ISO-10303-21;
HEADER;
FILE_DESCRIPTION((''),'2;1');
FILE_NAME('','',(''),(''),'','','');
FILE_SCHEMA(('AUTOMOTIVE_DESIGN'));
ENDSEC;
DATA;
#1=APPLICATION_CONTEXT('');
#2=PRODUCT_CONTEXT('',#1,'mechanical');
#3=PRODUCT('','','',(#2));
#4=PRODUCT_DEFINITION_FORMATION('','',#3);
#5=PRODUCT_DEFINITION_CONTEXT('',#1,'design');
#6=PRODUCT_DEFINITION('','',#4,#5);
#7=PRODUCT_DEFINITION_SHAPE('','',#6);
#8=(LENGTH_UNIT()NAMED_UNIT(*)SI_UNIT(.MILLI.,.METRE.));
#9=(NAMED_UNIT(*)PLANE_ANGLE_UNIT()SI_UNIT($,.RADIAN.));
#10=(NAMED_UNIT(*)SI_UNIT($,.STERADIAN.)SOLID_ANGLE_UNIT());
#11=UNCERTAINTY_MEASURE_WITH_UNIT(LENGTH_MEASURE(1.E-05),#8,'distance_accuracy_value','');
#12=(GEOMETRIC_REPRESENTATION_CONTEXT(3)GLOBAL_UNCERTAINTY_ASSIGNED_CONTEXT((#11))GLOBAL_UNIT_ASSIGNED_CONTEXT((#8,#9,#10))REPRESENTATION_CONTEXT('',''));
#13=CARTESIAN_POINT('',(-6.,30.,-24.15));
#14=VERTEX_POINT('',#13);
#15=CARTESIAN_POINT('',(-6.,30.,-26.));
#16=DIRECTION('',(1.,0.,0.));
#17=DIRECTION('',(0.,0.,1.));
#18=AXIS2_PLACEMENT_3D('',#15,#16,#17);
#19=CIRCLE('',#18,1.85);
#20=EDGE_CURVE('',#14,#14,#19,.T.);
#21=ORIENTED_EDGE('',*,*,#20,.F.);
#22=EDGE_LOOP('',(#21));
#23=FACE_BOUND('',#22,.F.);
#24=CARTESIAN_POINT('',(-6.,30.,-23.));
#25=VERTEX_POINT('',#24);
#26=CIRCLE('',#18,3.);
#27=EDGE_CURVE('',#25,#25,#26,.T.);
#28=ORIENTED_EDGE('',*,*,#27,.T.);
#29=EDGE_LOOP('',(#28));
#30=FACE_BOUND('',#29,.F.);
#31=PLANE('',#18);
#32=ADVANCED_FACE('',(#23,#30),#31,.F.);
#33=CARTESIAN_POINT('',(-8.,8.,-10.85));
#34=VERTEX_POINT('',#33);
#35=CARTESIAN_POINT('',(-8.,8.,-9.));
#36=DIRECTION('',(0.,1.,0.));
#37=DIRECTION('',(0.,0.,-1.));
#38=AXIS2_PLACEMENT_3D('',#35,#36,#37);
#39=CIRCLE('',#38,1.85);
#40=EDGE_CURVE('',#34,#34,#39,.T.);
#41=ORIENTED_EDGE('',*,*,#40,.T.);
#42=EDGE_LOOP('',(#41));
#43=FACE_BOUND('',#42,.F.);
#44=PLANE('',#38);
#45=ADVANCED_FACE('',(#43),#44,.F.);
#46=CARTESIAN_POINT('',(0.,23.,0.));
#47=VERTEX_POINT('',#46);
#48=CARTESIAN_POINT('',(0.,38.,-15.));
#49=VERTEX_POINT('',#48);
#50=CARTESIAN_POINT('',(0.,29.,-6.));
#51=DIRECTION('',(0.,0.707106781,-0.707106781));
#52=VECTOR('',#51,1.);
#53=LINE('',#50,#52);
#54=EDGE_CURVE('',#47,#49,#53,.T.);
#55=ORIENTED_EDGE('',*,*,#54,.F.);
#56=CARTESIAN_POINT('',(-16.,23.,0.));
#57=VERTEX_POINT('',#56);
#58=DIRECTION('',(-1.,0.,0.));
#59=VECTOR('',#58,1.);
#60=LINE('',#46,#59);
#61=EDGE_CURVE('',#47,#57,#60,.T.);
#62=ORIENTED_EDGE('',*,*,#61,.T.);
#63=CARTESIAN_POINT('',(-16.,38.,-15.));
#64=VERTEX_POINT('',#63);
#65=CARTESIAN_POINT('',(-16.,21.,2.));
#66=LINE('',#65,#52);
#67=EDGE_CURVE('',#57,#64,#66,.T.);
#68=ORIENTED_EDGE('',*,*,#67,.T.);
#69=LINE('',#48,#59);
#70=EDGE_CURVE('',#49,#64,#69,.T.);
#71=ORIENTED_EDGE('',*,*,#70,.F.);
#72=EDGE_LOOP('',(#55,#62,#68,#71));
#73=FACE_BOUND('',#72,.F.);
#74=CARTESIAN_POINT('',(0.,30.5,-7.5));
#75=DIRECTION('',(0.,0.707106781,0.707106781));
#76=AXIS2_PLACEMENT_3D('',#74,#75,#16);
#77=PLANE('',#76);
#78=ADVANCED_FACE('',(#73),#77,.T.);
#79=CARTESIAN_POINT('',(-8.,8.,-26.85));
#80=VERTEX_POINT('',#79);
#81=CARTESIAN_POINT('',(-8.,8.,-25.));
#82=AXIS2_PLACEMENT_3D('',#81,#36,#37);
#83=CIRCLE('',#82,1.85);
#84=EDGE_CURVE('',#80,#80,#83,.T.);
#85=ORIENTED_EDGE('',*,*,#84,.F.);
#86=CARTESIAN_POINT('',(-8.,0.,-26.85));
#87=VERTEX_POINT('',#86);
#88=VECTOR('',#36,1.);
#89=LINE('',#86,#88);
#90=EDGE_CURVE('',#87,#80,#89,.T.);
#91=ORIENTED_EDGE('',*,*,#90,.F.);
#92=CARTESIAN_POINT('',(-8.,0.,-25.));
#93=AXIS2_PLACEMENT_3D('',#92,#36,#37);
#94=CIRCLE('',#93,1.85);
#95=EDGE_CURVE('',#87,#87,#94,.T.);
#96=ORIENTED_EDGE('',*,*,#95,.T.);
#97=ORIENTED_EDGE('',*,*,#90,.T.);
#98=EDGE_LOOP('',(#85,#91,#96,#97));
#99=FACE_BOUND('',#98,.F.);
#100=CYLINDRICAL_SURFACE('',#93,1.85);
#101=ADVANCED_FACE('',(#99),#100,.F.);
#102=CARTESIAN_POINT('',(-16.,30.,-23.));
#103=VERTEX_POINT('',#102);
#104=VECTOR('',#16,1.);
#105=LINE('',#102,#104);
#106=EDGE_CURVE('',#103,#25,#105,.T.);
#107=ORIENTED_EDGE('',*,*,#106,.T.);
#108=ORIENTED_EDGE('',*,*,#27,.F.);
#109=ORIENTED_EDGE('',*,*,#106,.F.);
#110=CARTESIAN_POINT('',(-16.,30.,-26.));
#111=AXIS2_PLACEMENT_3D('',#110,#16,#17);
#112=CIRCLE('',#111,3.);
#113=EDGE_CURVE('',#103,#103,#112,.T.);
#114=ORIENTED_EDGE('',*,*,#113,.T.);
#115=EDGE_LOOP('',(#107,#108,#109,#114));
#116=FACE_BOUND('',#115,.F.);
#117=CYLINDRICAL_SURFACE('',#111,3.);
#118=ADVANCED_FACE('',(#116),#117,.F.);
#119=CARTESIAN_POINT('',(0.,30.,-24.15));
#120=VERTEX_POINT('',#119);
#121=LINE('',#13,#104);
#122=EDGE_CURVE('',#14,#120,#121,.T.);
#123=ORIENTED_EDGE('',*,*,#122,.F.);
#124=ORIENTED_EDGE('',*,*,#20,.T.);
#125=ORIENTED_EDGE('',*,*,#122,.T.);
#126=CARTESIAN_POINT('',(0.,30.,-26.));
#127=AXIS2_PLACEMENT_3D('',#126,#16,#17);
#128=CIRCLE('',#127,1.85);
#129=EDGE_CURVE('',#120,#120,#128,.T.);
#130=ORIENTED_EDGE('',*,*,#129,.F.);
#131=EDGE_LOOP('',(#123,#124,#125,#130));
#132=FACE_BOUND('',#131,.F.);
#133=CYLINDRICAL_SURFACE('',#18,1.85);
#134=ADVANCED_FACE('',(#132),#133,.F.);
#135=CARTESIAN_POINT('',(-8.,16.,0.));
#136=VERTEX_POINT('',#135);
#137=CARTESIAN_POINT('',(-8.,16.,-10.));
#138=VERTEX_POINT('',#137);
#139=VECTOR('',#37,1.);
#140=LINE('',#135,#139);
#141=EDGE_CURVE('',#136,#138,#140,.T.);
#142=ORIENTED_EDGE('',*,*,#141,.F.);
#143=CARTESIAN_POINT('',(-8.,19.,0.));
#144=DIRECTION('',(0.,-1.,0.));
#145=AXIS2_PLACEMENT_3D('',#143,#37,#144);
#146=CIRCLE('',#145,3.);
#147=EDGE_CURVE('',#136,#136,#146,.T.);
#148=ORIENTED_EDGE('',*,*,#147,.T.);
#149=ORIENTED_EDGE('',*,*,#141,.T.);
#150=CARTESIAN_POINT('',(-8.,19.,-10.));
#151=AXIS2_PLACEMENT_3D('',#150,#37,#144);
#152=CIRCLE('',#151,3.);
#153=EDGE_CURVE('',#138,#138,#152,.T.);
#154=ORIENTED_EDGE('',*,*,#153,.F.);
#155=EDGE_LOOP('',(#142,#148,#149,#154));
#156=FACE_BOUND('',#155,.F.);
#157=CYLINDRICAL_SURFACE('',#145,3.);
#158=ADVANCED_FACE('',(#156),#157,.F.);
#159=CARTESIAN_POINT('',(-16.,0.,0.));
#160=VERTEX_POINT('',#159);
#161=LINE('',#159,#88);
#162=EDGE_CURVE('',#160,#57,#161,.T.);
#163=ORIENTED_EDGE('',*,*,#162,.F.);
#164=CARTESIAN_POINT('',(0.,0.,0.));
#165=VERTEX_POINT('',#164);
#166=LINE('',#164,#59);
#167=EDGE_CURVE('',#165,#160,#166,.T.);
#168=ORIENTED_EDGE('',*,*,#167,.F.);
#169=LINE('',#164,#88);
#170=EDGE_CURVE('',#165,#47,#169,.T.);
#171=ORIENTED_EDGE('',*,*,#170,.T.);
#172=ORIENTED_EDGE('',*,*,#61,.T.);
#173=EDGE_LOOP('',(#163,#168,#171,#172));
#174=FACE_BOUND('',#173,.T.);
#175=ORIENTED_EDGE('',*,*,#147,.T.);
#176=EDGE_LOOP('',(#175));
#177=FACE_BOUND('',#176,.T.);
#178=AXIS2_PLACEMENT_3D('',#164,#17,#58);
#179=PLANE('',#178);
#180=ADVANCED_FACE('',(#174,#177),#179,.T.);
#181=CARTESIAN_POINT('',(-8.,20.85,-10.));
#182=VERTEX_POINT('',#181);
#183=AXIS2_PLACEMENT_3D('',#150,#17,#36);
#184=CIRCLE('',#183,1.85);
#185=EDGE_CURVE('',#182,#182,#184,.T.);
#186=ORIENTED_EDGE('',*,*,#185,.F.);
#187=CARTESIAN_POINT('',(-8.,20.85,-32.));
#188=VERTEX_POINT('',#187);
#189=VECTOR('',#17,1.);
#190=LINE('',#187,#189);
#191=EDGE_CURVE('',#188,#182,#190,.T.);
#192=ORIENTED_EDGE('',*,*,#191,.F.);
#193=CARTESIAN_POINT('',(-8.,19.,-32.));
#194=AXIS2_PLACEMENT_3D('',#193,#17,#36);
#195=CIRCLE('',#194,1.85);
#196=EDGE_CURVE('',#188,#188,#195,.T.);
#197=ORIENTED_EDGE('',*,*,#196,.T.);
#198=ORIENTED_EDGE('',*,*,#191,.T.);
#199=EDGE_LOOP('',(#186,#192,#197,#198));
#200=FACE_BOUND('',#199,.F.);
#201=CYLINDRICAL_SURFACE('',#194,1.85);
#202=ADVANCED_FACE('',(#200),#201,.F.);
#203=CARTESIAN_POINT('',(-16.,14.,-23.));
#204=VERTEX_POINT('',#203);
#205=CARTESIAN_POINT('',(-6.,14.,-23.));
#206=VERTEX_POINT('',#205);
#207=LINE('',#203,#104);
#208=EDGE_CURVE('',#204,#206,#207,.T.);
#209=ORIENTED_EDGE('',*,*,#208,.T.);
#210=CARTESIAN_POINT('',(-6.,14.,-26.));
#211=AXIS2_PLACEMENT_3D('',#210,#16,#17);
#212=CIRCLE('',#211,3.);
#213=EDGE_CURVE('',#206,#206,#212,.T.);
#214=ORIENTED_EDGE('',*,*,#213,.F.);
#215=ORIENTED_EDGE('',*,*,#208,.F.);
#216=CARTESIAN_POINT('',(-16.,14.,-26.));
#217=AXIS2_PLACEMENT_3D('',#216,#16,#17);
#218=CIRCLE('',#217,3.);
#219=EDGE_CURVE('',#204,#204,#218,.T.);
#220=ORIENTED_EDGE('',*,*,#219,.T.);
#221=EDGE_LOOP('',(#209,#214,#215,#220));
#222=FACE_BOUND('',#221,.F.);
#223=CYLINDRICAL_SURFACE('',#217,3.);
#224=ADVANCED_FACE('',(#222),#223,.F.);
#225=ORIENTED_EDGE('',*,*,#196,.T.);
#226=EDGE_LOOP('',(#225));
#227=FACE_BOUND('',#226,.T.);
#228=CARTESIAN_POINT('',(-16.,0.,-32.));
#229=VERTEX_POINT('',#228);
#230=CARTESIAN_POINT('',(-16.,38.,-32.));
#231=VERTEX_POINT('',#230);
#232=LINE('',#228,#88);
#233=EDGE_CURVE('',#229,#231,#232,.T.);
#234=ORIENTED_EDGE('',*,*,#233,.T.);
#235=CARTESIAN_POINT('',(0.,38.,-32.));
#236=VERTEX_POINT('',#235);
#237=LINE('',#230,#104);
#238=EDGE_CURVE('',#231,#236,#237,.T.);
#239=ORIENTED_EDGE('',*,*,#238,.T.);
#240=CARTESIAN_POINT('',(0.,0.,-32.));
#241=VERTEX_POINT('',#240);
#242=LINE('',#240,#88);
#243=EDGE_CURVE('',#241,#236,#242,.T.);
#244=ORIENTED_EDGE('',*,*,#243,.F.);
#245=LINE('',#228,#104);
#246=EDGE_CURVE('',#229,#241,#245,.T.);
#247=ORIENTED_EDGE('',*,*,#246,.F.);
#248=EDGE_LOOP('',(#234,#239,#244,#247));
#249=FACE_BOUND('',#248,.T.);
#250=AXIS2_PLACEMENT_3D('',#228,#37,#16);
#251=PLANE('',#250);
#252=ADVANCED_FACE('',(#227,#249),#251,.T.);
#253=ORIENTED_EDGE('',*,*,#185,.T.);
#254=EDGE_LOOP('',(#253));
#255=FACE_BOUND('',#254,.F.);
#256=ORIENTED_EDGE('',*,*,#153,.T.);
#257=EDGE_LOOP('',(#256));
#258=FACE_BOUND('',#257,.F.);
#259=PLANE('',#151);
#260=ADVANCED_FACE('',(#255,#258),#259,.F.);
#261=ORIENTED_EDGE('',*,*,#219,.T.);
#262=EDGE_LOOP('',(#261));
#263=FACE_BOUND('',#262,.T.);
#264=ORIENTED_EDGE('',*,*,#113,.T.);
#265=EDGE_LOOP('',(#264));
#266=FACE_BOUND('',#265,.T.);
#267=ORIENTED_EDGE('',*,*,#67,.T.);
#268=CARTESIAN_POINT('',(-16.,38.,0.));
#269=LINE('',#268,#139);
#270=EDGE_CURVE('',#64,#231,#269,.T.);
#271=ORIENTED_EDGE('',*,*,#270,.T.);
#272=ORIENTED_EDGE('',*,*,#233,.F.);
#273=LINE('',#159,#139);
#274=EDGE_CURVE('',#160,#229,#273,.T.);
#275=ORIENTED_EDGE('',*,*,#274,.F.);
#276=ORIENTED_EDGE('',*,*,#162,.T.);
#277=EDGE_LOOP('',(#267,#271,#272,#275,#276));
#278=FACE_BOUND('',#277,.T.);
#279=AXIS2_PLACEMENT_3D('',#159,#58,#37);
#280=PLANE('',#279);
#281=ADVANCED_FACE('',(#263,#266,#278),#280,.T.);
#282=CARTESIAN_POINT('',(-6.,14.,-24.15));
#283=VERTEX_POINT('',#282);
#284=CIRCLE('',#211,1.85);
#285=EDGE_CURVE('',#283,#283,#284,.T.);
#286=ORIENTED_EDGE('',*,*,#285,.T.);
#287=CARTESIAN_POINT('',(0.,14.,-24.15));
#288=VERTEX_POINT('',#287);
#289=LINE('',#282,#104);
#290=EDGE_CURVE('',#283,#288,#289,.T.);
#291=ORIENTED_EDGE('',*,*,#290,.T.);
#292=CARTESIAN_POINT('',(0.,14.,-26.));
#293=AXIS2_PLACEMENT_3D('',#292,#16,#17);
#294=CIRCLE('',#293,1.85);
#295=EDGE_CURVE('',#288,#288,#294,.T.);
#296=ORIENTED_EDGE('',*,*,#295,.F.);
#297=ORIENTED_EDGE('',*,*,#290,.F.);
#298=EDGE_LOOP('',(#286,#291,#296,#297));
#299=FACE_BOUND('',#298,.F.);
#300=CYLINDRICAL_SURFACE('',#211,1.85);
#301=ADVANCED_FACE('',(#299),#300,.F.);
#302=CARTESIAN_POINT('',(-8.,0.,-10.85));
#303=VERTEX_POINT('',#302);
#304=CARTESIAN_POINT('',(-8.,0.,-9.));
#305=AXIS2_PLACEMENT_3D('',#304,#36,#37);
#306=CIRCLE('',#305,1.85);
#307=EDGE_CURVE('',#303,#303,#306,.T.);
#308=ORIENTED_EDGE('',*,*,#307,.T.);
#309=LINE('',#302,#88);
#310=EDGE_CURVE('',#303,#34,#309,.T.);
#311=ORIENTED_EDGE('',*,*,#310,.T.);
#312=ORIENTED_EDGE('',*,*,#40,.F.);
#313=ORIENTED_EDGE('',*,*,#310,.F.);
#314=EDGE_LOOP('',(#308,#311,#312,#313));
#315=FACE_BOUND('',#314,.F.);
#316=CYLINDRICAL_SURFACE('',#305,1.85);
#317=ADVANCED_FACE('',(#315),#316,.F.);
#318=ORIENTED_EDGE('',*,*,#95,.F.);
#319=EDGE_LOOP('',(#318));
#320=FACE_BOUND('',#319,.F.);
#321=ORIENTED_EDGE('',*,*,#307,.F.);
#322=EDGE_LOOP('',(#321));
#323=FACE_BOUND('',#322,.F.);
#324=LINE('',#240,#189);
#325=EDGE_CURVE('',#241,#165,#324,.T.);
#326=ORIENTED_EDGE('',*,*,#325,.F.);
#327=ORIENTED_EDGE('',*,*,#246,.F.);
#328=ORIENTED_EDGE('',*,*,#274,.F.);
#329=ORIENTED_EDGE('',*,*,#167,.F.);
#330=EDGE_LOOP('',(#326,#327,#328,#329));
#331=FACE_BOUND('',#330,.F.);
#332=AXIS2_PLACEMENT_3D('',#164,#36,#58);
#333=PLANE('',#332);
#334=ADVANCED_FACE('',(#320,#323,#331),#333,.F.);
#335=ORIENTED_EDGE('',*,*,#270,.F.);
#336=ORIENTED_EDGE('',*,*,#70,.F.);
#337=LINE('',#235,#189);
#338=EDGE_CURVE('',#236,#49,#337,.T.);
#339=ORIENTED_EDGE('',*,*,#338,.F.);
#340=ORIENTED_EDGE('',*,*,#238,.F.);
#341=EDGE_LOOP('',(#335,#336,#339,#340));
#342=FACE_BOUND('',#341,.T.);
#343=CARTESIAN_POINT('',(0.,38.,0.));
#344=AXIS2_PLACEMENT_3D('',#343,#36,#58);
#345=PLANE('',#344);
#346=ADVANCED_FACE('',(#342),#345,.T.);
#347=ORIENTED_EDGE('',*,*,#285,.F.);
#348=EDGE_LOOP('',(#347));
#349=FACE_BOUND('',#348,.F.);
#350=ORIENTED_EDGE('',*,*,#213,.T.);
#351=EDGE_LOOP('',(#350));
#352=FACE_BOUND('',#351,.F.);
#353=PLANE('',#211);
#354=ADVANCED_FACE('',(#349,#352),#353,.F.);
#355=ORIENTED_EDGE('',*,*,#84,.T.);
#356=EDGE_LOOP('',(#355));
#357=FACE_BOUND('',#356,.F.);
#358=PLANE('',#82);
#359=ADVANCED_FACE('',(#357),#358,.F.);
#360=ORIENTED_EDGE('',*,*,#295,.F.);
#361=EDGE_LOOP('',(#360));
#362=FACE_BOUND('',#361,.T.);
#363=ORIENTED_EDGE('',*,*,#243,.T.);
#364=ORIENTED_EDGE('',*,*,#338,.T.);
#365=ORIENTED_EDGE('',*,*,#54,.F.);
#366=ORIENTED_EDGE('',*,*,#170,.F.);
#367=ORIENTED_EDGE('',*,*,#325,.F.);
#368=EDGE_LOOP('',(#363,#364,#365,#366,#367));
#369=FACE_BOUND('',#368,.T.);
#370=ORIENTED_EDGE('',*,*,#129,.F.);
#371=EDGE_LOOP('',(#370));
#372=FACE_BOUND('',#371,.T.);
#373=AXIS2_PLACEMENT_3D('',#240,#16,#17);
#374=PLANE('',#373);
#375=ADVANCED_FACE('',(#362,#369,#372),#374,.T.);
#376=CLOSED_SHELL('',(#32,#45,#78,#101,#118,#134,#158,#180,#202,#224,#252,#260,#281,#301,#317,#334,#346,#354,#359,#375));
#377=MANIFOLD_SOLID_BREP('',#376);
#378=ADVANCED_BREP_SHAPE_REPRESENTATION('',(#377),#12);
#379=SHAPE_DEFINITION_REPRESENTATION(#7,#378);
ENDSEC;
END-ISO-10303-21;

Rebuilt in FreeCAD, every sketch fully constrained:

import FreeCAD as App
import Part
import Sketcher
Q = App.Units.Quantity


def edges_at(feature, points):
    """Names of the edges that pass closest to the given points."""
    edges = feature.Shape.Edges
    near = lambda p: min(range(len(edges)), key=lambda i: edges[i].distToShape(Part.Vertex(*p))[0])
    return sorted({f"Edge{near(p) + 1}" for p in points})


def add_polygon(sketch, points):
    """Adds a closed chain of lines whose ends are joined by coincident constraints."""
    first, n = sketch.GeometryCount, len(points)
    for a, b in zip(points, points[1:] + points[:1]):
        sketch.addGeometry(Part.LineSegment(App.Vector(*a, 0), App.Vector(*b, 0)), False)
    for i in range(n):
        sketch.addConstraint(Sketcher.Constraint("Coincident", first + i, 2, first + (i + 1) % n, 1))

doc = App.newDocument("Part")
params = doc.addObject("Spreadsheet::Sheet", "Params")
for row, (alias, value) in enumerate([
    ("sketch1_width", "16 mm"),
    ("sketch1_height", "32 mm"),
    ("pad1_length", "38 mm"),
    ("sketch2_diameter", "3.7 mm"),
    ("hole_diameter", "3.7 mm"),
    ("hole_cbore_diameter", "6 mm"),
    ("hole_cbore_depth", "10 mm"),
    ("sketch3_diameter", "3.7 mm"),
    ("hole2_diameter", "3.7 mm"),
    ("hole2_depth", "8 mm"),
    ("chamfer_size", "15 mm"),
    ("sketch4_diameter", "3.7 mm"),
    ("hole3_diameter", "3.7 mm"),
    ("sketch5_diameter", "6 mm"),
    ("hole4_diameter", "6 mm"),
    ("hole4_depth", "10 mm"),
], start=1):
    params.set(f"A{row}", alias)
    params.set(f"B{row}", "=" + value)
    params.setAlias(f"B{row}", alias)

body = doc.addObject("PartDesign::Body", "Body")

sketch1 = doc.addObject("Sketcher::SketchObject", "Sketch")
body.addObject(sketch1)
sketch1.AttachmentSupport = (doc.XZ_Plane, [""])
sketch1.MapMode = "FlatFace"
add_polygon(sketch1, [(-16, 0), (0, 0), (0, -32), (-16, -32)])
sketch1.addConstraint([
    Sketcher.Constraint("Horizontal", 0),
    Sketcher.Constraint("Vertical", 1),
    Sketcher.Constraint("Horizontal", 2),
    Sketcher.Constraint("Vertical", 3),
    Sketcher.Constraint("Coincident", 0, 2, -1, 1),
    Sketcher.Constraint("DistanceX", 0, 1, 0, 2, Q("16 mm")),
    Sketcher.Constraint("DistanceY", 1, 2, 1, 1, Q("32 mm")),
])
sketch1.setExpression("Constraints[9]", "Params.sketch1_width")
sketch1.setExpression("Constraints[10]", "Params.sketch1_height")
pad1 = doc.addObject("PartDesign::Pad", "Pad")
body.addObject(pad1)
pad1.Profile = sketch1
pad1.setExpression("Length", "Params.pad1_length")
pad1.Reversed = True

sketch2 = doc.addObject("Sketcher::SketchObject", "Sketch001")
body.addObject(sketch2)
sketch2.AttachmentSupport = (doc.YZ_Plane, [""])
sketch2.MapMode = "FlatFace"
sketch2.AttachmentOffset = App.Placement(App.Vector(0, 0, -16), App.Rotation())
sketch2.addGeometry([
    Part.Circle(App.Vector(14, -26, 0), App.Vector(0, 0, 1), 1.9),
    Part.Circle(App.Vector(30, -26, 0), App.Vector(0, 0, 1), 1.9),
], False)
sketch2.addConstraint([
    Sketcher.Constraint("Equal", 0, 1),
    Sketcher.Constraint("Horizontal", 0, 3, 1, 3),
    Sketcher.Constraint("Diameter", 0, Q("3.7 mm")),
    Sketcher.Constraint("DistanceX", -1, 1, 0, 3, Q("14 mm")),
    Sketcher.Constraint("DistanceY", 0, 3, -1, 1, Q("26 mm")),
    Sketcher.Constraint("DistanceX", -1, 1, 1, 3, Q("30 mm")),
])
sketch2.setExpression("Constraints[2]", "Params.sketch2_diameter")
doc.recompute()
hole = doc.addObject("PartDesign::Hole", "Hole")
body.addObject(hole)
hole.Profile = sketch2
hole.ThreadType = "None"
hole.setExpression("Diameter", "Params.hole_diameter")
hole.DepthType = "ThroughAll"
hole.HoleCutType = "Counterbore"
hole.setExpression("HoleCutDiameter", "Params.hole_cbore_diameter")
hole.setExpression("HoleCutDepth", "Params.hole_cbore_depth")
hole.Reversed = True

sketch3 = doc.addObject("Sketcher::SketchObject", "Sketch002")
body.addObject(sketch3)
sketch3.AttachmentSupport = (doc.XZ_Plane, [""])
sketch3.MapMode = "FlatFace"
sketch3.addGeometry([
    Part.Circle(App.Vector(-8, -25, 0), App.Vector(0, 0, 1), 1.9),
    Part.Circle(App.Vector(-8, -9, 0), App.Vector(0, 0, 1), 1.9),
], False)
sketch3.addConstraint([
    Sketcher.Constraint("Equal", 0, 1),
    Sketcher.Constraint("Vertical", 0, 3, 1, 3),
    Sketcher.Constraint("Diameter", 0, Q("3.7 mm")),
    Sketcher.Constraint("DistanceX", 0, 3, -1, 1, Q("8 mm")),
    Sketcher.Constraint("DistanceY", 0, 3, -1, 1, Q("25 mm")),
    Sketcher.Constraint("DistanceY", 1, 3, -1, 1, Q("9 mm")),
])
sketch3.setExpression("Constraints[2]", "Params.sketch3_diameter")
doc.recompute()
hole2 = doc.addObject("PartDesign::Hole", "Hole001")
body.addObject(hole2)
hole2.Profile = sketch3
hole2.ThreadType = "None"
hole2.setExpression("Diameter", "Params.hole2_diameter")
hole2.DepthType = "Dimension"
hole2.setExpression("Depth", "Params.hole2_depth")
hole2.DrillPoint = "Flat"
doc.recompute()

chamfer = doc.addObject("PartDesign::Chamfer", "Chamfer")
body.addObject(chamfer)
chamfer.Base = (hole2, edges_at(hole2, [(-8, 38, 0)]))
chamfer.setExpression("Size", "Params.chamfer_size")

sketch4 = doc.addObject("Sketcher::SketchObject", "Sketch003")
body.addObject(sketch4)
sketch4.AttachmentSupport = (doc.XY_Plane, [""])
sketch4.MapMode = "FlatFace"
sketch4.AttachmentOffset = App.Placement(App.Vector(0, 0, -32), App.Rotation())
sketch4.addGeometry(Part.Circle(App.Vector(-8, 19, 0), App.Vector(0, 0, 1), 1.9), False)
sketch4.addConstraint([
    Sketcher.Constraint("Diameter", 0, Q("3.7 mm")),
    Sketcher.Constraint("DistanceX", 0, 3, -1, 1, Q("8 mm")),
    Sketcher.Constraint("DistanceY", -1, 1, 0, 3, Q("19 mm")),
])
sketch4.setExpression("Constraints[0]", "Params.sketch4_diameter")
doc.recompute()
hole3 = doc.addObject("PartDesign::Hole", "Hole002")
body.addObject(hole3)
hole3.Profile = sketch4
hole3.ThreadType = "None"
hole3.setExpression("Diameter", "Params.hole3_diameter")
hole3.DepthType = "ThroughAll"
hole3.Reversed = True

sketch5 = doc.addObject("Sketcher::SketchObject", "Sketch004")
body.addObject(sketch5)
sketch5.AttachmentSupport = (doc.XY_Plane, [""])
sketch5.MapMode = "FlatFace"
sketch5.addGeometry(Part.Circle(App.Vector(-8, 19, 0), App.Vector(0, 0, 1), 3), False)
sketch5.addConstraint([
    Sketcher.Constraint("Diameter", 0, Q("6 mm")),
    Sketcher.Constraint("DistanceX", 0, 3, -1, 1, Q("8 mm")),
    Sketcher.Constraint("DistanceY", -1, 1, 0, 3, Q("19 mm")),
])
sketch5.setExpression("Constraints[0]", "Params.sketch5_diameter")
doc.recompute()
hole4 = doc.addObject("PartDesign::Hole", "Hole003")
body.addObject(hole4)
hole4.Profile = sketch5
hole4.ThreadType = "None"
hole4.setExpression("Diameter", "Params.hole4_diameter")
hole4.DepthType = "Dimension"
hole4.setExpression("Depth", "Params.hole4_depth")
hole4.DrillPoint = "Flat"

doc.recompute()
